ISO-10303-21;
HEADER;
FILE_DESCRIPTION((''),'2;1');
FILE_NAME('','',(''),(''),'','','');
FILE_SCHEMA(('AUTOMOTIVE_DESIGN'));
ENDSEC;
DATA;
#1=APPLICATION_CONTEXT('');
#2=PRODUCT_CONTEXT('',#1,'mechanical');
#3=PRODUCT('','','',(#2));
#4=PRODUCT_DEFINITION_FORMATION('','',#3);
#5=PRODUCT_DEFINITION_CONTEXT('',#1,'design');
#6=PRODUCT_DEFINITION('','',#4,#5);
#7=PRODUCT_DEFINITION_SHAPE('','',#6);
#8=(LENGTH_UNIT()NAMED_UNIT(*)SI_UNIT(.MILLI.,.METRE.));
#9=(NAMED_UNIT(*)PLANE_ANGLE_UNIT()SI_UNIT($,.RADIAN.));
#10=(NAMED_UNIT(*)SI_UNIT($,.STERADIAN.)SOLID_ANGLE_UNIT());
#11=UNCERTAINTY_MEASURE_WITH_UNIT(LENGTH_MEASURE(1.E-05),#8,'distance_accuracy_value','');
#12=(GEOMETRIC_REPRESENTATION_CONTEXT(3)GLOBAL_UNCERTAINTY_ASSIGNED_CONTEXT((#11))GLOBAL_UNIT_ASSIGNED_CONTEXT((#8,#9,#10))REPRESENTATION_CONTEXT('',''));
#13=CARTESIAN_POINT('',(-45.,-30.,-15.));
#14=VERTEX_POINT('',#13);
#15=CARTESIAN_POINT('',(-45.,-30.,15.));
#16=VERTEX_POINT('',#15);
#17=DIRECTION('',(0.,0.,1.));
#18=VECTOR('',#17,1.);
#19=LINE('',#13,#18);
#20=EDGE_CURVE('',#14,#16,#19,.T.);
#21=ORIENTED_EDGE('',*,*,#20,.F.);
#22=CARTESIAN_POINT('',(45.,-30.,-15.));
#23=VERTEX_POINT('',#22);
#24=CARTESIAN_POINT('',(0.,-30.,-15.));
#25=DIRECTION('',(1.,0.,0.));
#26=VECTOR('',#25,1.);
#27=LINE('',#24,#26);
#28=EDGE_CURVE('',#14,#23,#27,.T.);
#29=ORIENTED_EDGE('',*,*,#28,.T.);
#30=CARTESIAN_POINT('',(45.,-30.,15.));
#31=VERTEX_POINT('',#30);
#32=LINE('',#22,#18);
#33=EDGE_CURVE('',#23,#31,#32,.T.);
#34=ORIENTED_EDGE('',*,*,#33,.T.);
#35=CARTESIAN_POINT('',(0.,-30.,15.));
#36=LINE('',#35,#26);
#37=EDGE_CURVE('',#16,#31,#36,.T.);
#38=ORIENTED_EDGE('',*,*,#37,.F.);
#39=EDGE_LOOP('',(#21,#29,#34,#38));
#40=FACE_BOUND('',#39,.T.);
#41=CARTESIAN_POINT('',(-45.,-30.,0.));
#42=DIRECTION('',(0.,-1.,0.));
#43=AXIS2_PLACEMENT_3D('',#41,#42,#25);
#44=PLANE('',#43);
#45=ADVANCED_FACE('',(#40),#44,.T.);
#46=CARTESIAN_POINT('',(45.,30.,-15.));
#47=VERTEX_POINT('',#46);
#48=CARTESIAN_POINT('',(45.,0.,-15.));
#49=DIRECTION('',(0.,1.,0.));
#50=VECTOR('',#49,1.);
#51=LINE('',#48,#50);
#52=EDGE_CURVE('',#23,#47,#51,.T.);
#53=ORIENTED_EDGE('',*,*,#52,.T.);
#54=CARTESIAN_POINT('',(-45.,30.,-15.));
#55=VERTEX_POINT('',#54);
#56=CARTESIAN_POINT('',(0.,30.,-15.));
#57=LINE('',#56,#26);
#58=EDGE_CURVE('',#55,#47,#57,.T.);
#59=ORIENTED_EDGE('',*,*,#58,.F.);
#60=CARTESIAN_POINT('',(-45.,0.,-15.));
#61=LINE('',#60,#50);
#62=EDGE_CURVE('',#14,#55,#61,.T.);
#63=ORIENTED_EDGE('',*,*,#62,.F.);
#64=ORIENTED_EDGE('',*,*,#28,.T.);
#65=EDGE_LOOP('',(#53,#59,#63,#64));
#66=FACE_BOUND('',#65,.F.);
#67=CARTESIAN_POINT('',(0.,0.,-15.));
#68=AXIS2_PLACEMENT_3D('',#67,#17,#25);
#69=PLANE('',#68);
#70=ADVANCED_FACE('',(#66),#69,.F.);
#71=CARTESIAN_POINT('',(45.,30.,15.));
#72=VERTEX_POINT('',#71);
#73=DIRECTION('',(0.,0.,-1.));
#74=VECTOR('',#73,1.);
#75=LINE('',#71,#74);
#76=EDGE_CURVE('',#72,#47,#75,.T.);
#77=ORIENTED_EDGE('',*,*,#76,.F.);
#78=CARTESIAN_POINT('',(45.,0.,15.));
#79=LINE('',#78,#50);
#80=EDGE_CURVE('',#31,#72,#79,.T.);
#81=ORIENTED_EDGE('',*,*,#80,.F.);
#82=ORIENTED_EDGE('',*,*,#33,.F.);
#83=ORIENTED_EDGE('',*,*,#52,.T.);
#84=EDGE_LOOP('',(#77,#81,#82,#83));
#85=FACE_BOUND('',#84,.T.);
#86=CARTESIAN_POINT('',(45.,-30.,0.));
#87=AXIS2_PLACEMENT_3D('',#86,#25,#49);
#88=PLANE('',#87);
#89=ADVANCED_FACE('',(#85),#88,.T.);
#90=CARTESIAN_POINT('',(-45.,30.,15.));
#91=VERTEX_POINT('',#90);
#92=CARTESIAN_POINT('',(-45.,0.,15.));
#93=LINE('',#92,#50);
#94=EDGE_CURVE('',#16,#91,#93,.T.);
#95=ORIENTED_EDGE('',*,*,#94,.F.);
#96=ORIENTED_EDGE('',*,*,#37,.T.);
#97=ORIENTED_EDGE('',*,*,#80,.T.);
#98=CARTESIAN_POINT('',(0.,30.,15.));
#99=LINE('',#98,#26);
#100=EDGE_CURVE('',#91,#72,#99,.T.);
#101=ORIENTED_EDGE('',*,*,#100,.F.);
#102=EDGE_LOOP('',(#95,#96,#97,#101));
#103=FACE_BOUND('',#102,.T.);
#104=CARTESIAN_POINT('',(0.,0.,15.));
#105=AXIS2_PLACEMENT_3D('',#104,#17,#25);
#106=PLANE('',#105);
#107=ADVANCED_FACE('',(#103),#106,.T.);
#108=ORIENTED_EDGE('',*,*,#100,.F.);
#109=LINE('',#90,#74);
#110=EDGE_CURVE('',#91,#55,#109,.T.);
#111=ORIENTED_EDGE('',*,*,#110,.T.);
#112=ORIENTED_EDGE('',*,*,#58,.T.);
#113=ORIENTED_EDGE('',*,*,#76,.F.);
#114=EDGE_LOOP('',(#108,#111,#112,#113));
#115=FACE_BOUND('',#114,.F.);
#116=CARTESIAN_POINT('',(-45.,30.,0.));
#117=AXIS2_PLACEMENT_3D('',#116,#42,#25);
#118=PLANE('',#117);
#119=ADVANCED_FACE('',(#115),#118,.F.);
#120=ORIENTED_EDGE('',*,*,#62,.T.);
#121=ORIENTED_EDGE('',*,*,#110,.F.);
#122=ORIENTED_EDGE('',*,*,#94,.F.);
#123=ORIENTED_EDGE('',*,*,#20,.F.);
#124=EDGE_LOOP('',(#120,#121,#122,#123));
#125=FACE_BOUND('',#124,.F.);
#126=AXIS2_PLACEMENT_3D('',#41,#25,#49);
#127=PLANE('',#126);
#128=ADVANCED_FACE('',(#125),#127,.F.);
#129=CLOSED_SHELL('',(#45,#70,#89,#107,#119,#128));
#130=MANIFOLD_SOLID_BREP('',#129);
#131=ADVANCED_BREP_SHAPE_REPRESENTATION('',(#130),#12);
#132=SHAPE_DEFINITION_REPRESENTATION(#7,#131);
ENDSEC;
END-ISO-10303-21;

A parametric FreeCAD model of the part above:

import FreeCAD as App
import Part
import Sketcher

doc = App.newDocument("Part")
body = doc.addObject("PartDesign::Body", "Body")

sketch1 = doc.addObject("Sketcher::SketchObject", "Sketch")
body.addObject(sketch1)
sketch1.AttachmentSupport = (doc.XY_Plane, [""])
sketch1.MapMode = "FlatFace"
sketch1.addGeometry(Part.LineSegment(App.Vector(-45, 30, 0), App.Vector(-45, -30, 0)), False)
sketch1.addGeometry(Part.LineSegment(App.Vector(-45, -30, 0), App.Vector(45, -30, 0)), False)
sketch1.addGeometry(Part.LineSegment(App.Vector(45, -30, 0), App.Vector(45, 30, 0)), False)
sketch1.addGeometry(Part.LineSegment(App.Vector(45, 30, 0), App.Vector(-45, 30, 0)), False)
sketch1.addConstraint(Sketcher.Constraint("Coincident", 0, 2, 1, 1))
sketch1.addConstraint(Sketcher.Constraint("Coincident", 1, 2, 2, 1))
sketch1.addConstraint(Sketcher.Constraint("Coincident", 2, 2, 3, 1))
sketch1.addConstraint(Sketcher.Constraint("Coincident", 3, 2, 0, 1))
sketch1.addConstraint(Sketcher.Constraint("Vertical", 0))
sketch1.addConstraint(Sketcher.Constraint("Horizontal", 1))
sketch1.addConstraint(Sketcher.Constraint("Vertical", 2))
sketch1.addConstraint(Sketcher.Constraint("Horizontal", 3))
sketch1.addConstraint(Sketcher.Constraint("Symmetric", 0, 2, 2, 2, -1, 1))
sketch1.addConstraint(Sketcher.Constraint("DistanceX", 1, 1, 1, 2, 90.0))
sketch1.addConstraint(Sketcher.Constraint("DistanceY", 0, 2, 0, 1, 60.0))
pad1 = doc.addObject("PartDesign::Pad", "Pad")
body.addObject(pad1)
pad1.Profile = sketch1
pad1.Length = 30
pad1.Midplane = True

doc.recompute()
